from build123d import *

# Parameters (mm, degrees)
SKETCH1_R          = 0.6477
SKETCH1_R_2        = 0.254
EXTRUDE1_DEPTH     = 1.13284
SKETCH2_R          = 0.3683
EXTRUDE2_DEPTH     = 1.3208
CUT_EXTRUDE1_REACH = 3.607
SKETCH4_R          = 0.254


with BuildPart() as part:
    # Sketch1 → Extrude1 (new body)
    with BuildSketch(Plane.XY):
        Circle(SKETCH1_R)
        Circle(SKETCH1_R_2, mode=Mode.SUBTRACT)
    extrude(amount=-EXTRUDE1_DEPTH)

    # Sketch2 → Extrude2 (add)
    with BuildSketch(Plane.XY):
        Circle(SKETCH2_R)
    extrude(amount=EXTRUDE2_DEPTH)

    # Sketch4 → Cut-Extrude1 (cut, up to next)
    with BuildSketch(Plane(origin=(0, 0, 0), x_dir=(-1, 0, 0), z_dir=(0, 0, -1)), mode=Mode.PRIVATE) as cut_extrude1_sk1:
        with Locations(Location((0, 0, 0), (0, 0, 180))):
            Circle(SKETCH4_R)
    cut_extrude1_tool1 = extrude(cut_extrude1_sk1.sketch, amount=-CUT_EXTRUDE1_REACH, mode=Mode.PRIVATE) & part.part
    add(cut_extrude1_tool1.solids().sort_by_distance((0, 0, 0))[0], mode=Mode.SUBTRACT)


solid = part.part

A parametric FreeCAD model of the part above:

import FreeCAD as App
import Part
import Sketcher
Q = App.Units.Quantity

doc = App.newDocument("Part")
params = doc.addObject("Spreadsheet::Sheet", "Params")
for row, (alias, value) in enumerate([
    ("sketch1_diameter", "0.02 in"),
    ("sketch1_diameter2", "0.051 in"),
    ("pad1_length", "0.0446 in"),
    ("sketch2_diameter", "0.029 in"),
    ("pad2_length", "0.052 in"),
    ("sketch3_diameter", "0.02 in"),
], start=1):
    params.set(f"A{row}", alias)
    params.set(f"B{row}", "=" + value)
    params.setAlias(f"B{row}", alias)

body = doc.addObject("PartDesign::Body", "Body")

sketch1 = body.newObject("Sketcher::SketchObject", "Sketch")
sketch1.AttachmentSupport = (doc.getObject("XY_Plane"), [""])
sketch1.MapMode = "FlatFace"
sketch1.addGeometry([
    Part.Circle(App.Vector(0, 0, 0), App.Vector(0, 0, 1), 0.6477),
    Part.Circle(App.Vector(0, 0, 0), App.Vector(0, 0, 1), 0.254),
], False)
sketch1.addConstraint([
    Sketcher.Constraint("Coincident", 0, 3, -1, 1),
    Sketcher.Constraint("Coincident", 1, 3, -1, 1),
    Sketcher.Constraint("Diameter", 1, Q("0.02 in")),
    Sketcher.Constraint("Diameter", 0, Q("0.051 in")),
])
sketch1.setExpression("Constraints[2]", "Params.sketch1_diameter")
sketch1.setExpression("Constraints[3]", "Params.sketch1_diameter2")
pad1 = body.newObject("PartDesign::Pad", "Pad")
pad1.Profile = sketch1
pad1.setExpression("Length", "Params.pad1_length")
pad1.Reversed = True

sketch2 = body.newObject("Sketcher::SketchObject", "Sketch001")
sketch2.AttachmentSupport = (doc.getObject("XY_Plane"), [""])
sketch2.MapMode = "FlatFace"
sketch2.addGeometry(Part.Circle(App.Vector(0, 0, 0), App.Vector(0, 0, 1), 0.3683), False)
sketch2.addConstraint([
    Sketcher.Constraint("Coincident", 0, 3, -1, 1),
    Sketcher.Constraint("Diameter", 0, Q("0.029 in")),
])
sketch2.setExpression("Constraints[1]", "Params.sketch2_diameter")
pad2 = body.newObject("PartDesign::Pad", "Pad001")
pad2.Profile = sketch2
pad2.setExpression("Length", "Params.pad2_length")

sketch3 = body.newObject("Sketcher::SketchObject", "Sketch002")
sketch3.AttachmentSupport = (doc.getObject("XY_Plane"), [""])
sketch3.MapMode = "FlatFace"
sketch3.addGeometry(Part.Circle(App.Vector(0, 0, 0), App.Vector(0, 0, 1), 0.254), False)
sketch3.addConstraint([
    Sketcher.Constraint("Coincident", 0, 3, -1, 1),
    Sketcher.Constraint("Diameter", 0, Q("0.02 in")),
])
sketch3.setExpression("Constraints[1]", "Params.sketch3_diameter")
pocket1 = body.newObject("PartDesign::Pocket", "Pocket")
pocket1.Profile = sketch3
pocket1.Type = "UpToFirst"
pocket1.Reversed = True

doc.recompute()
